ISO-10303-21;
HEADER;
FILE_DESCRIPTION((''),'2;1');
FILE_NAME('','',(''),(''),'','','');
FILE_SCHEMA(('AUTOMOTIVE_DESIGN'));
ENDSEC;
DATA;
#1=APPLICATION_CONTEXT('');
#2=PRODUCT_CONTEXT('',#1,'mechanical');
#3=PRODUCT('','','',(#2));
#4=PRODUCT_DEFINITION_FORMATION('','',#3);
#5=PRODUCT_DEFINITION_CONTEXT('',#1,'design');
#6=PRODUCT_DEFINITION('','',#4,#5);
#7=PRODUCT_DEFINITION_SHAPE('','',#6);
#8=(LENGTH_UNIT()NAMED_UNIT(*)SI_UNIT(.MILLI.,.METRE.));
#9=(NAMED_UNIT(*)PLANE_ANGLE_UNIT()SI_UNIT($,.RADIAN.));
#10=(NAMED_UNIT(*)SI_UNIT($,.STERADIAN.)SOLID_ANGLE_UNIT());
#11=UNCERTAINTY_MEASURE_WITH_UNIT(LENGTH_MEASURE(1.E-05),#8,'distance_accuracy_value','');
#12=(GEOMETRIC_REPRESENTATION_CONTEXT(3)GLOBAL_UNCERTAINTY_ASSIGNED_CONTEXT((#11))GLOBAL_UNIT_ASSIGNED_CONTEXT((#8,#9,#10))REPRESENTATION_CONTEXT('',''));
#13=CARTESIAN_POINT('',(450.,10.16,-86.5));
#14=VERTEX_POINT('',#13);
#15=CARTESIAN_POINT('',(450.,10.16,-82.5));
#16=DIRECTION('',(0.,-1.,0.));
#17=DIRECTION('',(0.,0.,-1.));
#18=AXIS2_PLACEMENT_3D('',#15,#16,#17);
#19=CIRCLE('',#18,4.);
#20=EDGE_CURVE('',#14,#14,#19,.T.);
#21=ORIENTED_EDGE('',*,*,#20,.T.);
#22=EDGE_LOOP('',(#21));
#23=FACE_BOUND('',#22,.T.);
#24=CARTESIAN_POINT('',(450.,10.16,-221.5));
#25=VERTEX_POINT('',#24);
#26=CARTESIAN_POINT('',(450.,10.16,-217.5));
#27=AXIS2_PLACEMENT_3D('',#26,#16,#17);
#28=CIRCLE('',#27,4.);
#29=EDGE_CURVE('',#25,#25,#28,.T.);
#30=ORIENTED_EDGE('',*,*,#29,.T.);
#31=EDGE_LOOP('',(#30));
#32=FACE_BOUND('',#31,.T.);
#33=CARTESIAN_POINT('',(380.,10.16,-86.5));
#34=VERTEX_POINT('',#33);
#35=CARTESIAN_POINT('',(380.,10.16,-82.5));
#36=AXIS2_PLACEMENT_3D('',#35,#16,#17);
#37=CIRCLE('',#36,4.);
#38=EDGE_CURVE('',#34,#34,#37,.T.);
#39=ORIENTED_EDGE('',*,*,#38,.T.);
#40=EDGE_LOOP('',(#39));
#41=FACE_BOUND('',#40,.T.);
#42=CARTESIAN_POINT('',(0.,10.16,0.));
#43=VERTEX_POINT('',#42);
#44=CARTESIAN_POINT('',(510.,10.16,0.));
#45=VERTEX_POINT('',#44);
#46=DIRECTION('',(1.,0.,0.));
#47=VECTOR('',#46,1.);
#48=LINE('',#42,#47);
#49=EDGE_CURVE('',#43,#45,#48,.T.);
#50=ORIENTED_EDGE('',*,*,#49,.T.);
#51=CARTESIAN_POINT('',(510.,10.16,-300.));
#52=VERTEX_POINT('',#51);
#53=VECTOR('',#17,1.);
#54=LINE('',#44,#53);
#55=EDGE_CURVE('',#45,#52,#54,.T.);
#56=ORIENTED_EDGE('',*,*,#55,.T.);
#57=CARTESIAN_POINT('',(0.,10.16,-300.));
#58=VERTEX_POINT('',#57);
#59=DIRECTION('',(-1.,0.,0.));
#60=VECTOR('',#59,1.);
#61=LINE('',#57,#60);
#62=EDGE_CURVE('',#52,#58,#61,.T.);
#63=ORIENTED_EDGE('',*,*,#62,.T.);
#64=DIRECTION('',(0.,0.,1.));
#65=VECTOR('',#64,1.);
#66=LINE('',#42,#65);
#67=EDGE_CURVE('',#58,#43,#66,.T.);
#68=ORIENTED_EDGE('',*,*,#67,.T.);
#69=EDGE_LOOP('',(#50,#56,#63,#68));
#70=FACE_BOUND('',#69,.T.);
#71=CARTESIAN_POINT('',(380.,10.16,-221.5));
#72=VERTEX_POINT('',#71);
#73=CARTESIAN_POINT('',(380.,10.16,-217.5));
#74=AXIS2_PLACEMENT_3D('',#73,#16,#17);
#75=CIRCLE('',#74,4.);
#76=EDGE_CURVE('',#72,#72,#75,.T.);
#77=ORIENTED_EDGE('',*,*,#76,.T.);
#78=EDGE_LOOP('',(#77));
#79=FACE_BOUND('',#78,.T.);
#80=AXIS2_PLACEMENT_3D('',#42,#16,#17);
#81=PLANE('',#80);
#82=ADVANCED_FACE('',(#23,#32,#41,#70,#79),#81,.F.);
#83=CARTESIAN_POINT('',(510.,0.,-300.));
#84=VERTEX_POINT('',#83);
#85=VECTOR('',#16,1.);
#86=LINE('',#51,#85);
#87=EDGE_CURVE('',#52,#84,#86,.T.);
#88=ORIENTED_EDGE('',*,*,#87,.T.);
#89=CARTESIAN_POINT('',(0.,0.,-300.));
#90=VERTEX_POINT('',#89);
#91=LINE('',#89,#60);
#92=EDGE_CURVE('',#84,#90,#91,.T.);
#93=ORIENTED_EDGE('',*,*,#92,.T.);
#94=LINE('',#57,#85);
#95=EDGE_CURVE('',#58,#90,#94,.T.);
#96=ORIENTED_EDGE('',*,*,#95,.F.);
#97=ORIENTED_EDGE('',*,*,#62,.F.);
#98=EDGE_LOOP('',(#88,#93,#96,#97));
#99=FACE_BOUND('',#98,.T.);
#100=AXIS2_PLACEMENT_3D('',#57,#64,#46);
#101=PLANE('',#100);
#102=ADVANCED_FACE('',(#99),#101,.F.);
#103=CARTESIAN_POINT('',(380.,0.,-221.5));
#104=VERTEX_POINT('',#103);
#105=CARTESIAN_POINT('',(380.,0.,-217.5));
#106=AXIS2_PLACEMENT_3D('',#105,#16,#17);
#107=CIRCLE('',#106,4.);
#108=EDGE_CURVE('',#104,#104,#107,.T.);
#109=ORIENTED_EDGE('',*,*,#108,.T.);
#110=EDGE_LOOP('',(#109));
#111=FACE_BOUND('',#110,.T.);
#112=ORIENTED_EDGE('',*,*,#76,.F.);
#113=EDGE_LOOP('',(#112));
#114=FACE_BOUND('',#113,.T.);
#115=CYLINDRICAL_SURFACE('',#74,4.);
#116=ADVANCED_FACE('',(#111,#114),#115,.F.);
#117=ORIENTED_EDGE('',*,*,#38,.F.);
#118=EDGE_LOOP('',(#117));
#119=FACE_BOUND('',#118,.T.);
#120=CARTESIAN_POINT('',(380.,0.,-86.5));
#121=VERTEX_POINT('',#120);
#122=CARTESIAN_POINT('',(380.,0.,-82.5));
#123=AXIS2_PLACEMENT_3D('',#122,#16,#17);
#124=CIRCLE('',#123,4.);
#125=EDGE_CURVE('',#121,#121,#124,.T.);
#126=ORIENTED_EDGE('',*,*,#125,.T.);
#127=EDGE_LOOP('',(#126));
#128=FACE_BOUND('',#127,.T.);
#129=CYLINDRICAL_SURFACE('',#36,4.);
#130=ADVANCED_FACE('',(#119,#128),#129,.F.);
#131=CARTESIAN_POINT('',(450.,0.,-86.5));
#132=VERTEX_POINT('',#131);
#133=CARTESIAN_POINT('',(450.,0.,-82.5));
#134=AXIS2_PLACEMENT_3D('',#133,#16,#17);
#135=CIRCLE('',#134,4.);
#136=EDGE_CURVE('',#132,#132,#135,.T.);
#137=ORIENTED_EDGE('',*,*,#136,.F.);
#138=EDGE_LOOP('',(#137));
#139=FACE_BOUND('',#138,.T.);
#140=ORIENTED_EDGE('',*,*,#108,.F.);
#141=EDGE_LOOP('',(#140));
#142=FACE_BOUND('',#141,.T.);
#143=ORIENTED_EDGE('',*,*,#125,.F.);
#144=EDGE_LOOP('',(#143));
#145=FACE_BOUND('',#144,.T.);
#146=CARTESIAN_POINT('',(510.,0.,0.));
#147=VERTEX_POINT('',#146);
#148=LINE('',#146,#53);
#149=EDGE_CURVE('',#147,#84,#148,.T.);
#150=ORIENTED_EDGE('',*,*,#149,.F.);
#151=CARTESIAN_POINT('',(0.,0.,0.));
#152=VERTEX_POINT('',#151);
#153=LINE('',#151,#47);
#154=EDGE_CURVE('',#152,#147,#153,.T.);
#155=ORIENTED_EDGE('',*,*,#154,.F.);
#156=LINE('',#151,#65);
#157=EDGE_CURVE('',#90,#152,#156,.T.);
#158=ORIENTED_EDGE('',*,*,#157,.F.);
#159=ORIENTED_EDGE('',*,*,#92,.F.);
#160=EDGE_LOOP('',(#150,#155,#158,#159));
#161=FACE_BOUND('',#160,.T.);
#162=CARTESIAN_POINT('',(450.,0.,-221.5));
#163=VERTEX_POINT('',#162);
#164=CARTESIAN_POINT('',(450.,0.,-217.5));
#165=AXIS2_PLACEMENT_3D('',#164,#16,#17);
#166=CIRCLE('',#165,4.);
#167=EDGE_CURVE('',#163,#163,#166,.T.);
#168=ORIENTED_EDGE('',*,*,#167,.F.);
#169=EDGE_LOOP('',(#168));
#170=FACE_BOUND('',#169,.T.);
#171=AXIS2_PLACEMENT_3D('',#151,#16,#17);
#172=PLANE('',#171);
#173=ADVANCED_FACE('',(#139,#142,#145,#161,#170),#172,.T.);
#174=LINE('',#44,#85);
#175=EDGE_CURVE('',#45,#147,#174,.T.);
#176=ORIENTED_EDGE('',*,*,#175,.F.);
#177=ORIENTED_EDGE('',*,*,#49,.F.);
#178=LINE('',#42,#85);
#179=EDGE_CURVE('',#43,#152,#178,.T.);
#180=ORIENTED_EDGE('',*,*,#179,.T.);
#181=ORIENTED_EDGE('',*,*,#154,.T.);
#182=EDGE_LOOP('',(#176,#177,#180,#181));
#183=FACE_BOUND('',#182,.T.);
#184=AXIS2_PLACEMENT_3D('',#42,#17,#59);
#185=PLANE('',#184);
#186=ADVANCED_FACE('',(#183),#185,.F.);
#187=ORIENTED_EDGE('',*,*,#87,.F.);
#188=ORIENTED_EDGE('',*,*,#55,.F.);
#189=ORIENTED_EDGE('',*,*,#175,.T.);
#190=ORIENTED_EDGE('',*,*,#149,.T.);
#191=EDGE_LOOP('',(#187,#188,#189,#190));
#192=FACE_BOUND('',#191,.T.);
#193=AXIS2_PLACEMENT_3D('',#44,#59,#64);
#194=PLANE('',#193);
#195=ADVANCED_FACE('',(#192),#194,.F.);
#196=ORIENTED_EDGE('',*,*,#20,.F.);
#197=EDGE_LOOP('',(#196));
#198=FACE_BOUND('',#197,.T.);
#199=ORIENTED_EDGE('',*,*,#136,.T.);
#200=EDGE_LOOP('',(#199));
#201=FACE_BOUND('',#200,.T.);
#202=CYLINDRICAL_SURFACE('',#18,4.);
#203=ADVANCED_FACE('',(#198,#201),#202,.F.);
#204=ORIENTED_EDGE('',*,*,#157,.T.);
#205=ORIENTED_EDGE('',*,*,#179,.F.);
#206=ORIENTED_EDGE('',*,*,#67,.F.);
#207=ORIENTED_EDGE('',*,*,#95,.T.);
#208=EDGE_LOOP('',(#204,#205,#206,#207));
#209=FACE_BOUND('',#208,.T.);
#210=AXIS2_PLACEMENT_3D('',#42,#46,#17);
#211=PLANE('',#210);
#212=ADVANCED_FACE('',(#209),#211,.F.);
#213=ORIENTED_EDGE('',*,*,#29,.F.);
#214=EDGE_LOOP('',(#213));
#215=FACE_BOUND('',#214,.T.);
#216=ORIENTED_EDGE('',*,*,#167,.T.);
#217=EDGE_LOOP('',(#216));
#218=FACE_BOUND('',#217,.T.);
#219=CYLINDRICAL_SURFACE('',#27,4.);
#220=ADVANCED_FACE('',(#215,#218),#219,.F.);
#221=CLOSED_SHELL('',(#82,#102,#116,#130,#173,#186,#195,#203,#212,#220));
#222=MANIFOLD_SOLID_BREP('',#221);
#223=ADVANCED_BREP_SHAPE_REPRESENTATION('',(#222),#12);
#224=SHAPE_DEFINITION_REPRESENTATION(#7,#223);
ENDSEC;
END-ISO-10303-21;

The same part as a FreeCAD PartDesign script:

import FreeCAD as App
import Part
import Sketcher


def add_polygon(sketch, points):
    """Adds a closed chain of lines whose ends are joined by coincident constraints."""
    first, n = sketch.GeometryCount, len(points)
    for a, b in zip(points, points[1:] + points[:1]):
        sketch.addGeometry(Part.LineSegment(App.Vector(*a, 0), App.Vector(*b, 0)), False)
    for i in range(n):
        sketch.addConstraint(Sketcher.Constraint("Coincident", first + i, 2, first + (i + 1) % n, 1))

doc = App.newDocument("Part")
body = doc.addObject("PartDesign::Body", "Body")

sketch1 = body.newObject("Sketcher::SketchObject", "Sketch")
sketch1.AttachmentSupport = (doc.getObject("XZ_Plane"), [""])
sketch1.MapMode = "FlatFace"
add_polygon(sketch1, [(0, -300), (0, 0), (510, 0), (510, -300)])
sketch1.addConstraint([
    Sketcher.Constraint("Vertical", 0),
    Sketcher.Constraint("Horizontal", 1),
    Sketcher.Constraint("Vertical", 2),
    Sketcher.Constraint("Horizontal", 3),
    Sketcher.Constraint("Coincident", 0, 2, -1, 1),
    Sketcher.Constraint("DistanceX", 1, 1, 1, 2, 510.0),
    Sketcher.Constraint("DistanceY", 0, 1, 0, 2, 300.0),
])
pad1 = body.newObject("PartDesign::Pad", "Pad")
pad1.Profile = sketch1
pad1.Length = 10.16
pad1.Reversed = True

sketch2 = body.newObject("Sketcher::SketchObject", "Sketch001")
sketch2.AttachmentSupport = (doc.getObject("XZ_Plane"), [""])
sketch2.MapMode = "FlatFace"
sketch2.addGeometry([
    Part.Circle(App.Vector(380, -217.5, 0), App.Vector(0, 0, 1), 4),
    Part.Circle(App.Vector(380, -82.5, 0), App.Vector(0, 0, 1), 4),
    Part.Circle(App.Vector(450, -82.5, 0), App.Vector(0, 0, 1), 4),
    Part.Circle(App.Vector(450, -217.5, 0), App.Vector(0, 0, 1), 4),
], False)
sketch2.addConstraint([
    Sketcher.Constraint("Equal", 0, 1),
    Sketcher.Constraint("Equal", 1, 2),
    Sketcher.Constraint("Equal", 2, 3),
    Sketcher.Constraint("Horizontal", 1, 3, 2, 3),
    Sketcher.Constraint("Horizontal", 0, 3, 3, 3),
    Sketcher.Constraint("Vertical", 0, 3, 1, 3),
    Sketcher.Constraint("Vertical", 2, 3, 3, 3),
    Sketcher.Constraint("Diameter", 0, 8.0),
    Sketcher.Constraint("DistanceX", -1, 1, 0, 3, 380.0),
    Sketcher.Constraint("DistanceX", -1, 1, 2, 3, 450.0),
    Sketcher.Constraint("DistanceY", 0, 3, 1, 3, 135.0),
    Sketcher.Constraint("DistanceY", 0, 3, -1, 1, 217.5),
])
pocket1 = body.newObject("PartDesign::Pocket", "Pocket")
pocket1.Profile = sketch2
pocket1.Type = "ThroughAll"

doc.recompute()
